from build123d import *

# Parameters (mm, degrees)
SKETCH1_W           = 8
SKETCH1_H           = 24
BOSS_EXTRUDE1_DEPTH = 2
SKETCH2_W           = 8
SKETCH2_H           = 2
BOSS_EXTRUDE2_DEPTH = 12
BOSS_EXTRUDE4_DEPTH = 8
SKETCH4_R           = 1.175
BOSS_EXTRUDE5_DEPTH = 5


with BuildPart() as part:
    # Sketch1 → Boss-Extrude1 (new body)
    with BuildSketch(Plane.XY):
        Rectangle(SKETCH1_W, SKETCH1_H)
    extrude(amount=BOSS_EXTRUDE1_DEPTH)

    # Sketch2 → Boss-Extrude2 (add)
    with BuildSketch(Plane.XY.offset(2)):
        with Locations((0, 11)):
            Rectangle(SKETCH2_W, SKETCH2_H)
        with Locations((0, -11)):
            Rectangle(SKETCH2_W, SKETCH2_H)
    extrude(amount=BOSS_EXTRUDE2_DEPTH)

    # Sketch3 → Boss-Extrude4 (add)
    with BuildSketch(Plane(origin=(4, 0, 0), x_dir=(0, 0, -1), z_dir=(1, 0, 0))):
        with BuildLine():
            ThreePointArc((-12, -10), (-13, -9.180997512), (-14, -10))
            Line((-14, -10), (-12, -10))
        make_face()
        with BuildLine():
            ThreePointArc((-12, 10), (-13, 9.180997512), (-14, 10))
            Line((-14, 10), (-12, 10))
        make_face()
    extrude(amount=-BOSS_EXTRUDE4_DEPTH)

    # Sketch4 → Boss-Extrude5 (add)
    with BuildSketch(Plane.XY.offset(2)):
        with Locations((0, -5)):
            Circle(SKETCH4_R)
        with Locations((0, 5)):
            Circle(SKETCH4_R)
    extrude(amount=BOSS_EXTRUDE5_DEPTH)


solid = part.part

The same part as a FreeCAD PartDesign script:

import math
import FreeCAD as App
import Part
import Sketcher
Q = App.Units.Quantity


def add_polygon(sketch, points):
    """Adds a closed chain of lines whose ends are joined by coincident constraints."""
    first, n = sketch.GeometryCount, len(points)
    for a, b in zip(points, points[1:] + points[:1]):
        sketch.addGeometry(Part.LineSegment(App.Vector(*a, 0), App.Vector(*b, 0)), False)
    for i in range(n):
        sketch.addConstraint(Sketcher.Constraint("Coincident", first + i, 2, first + (i + 1) % n, 1))

doc = App.newDocument("Part")
params = doc.addObject("Spreadsheet::Sheet", "Params")
for row, (alias, value) in enumerate([
    ("sketch1_width", "8 mm"),
    ("sketch1_height", "24 mm"),
    ("pad1_length", "2 mm"),
    ("sketch2_width", "8 mm"),
    ("sketch2_height", "2 mm"),
    ("pad2_length", "12 mm"),
    ("sketch3_height", "2 mm"),
    ("sketch3_radius", "1.02 mm"),
    ("pad3_length", "8 mm"),
    ("sketch4_diameter", "2.35 mm"),
    ("pad4_length", "5 mm"),
], start=1):
    params.set(f"A{row}", alias)
    params.set(f"B{row}", "=" + value)
    params.setAlias(f"B{row}", alias)

body = doc.addObject("PartDesign::Body", "Body")

# Sketch on XY plane
sketch1 = body.newObject("Sketcher::SketchObject", "Sketch")
sketch1.AttachmentSupport = (doc.getObject("XY_Plane"), [""])
sketch1.MapMode = "FlatFace"
add_polygon(sketch1, [(-4, 12), (-4, -12), (4, -12), (4, 12)])  # lines 0-3
sketch1.addConstraint(Sketcher.Constraint("Vertical", 0))
sketch1.addConstraint(Sketcher.Constraint("Horizontal", 1))
sketch1.addConstraint(Sketcher.Constraint("Vertical", 2))
sketch1.addConstraint(Sketcher.Constraint("Horizontal", 3))
sketch1.addConstraint(Sketcher.Constraint("Symmetric", 0, 2, 2, 2, -1, 1))
sketch1.addConstraint(Sketcher.Constraint("DistanceX", 1, 1, 1, 2, Q("8 mm")))
sketch1.addConstraint(Sketcher.Constraint("DistanceY", 0, 2, 0, 1, Q("24 mm")))
sketch1.setExpression("Constraints[9]", "Params.sketch1_width")
sketch1.setExpression("Constraints[10]", "Params.sketch1_height")
pad1 = body.newObject("PartDesign::Pad", "Pad")
pad1.Profile = sketch1
pad1.setExpression("Length", "Params.pad1_length")

# Sketch on XY plane
sketch2 = body.newObject("Sketcher::SketchObject", "Sketch001")
sketch2.AttachmentSupport = (doc.getObject("XY_Plane"), [""])
sketch2.MapMode = "FlatFace"
sketch2.AttachmentOffset = App.Placement(App.Vector(0, 0, 2), App.Rotation())
add_polygon(sketch2, [(-4, 12), (-4, 10), (4, 10), (4, 12)])  # lines 0-3
add_polygon(sketch2, [(-4, -10), (-4, -12), (4, -12), (4, -10)])  # lines 4-7
sketch2.addConstraint(Sketcher.Constraint("Vertical", 0))
sketch2.addConstraint(Sketcher.Constraint("Horizontal", 1))
sketch2.addConstraint(Sketcher.Constraint("Vertical", 2))
sketch2.addConstraint(Sketcher.Constraint("Horizontal", 3))
sketch2.addConstraint(Sketcher.Constraint("Vertical", 4))
sketch2.addConstraint(Sketcher.Constraint("Horizontal", 5))
sketch2.addConstraint(Sketcher.Constraint("Vertical", 6))
sketch2.addConstraint(Sketcher.Constraint("Horizontal", 7))
sketch2.addConstraint(Sketcher.Constraint("Symmetric", 2, 2, 4, 2, -1, 1))
sketch2.addConstraint(Sketcher.Constraint("Symmetric", 0, 2, 6, 2, -1, 1))
sketch2.addConstraint(Sketcher.Constraint("Vertical", 3, 2, 4, 2))
sketch2.addConstraint(Sketcher.Constraint("DistanceX", 1, 1, 1, 2, Q("8 mm")))
sketch2.addConstraint(Sketcher.Constraint("DistanceY", 0, 2, 0, 1, Q("2 mm")))
sketch2.addConstraint(Sketcher.Constraint("DistanceY", -1, 1, 0, 2, Q("10 mm")))
sketch2.setExpression("Constraints[19]", "Params.sketch2_width")
sketch2.setExpression("Constraints[20]", "Params.sketch2_height")
pad2 = body.newObject("PartDesign::Pad", "Pad001")
pad2.Profile = sketch2
pad2.setExpression("Length", "Params.pad2_length")

# Sketch on YZ plane
sketch3 = body.newObject("Sketcher::SketchObject", "Sketch002")
sketch3.AttachmentSupport = (doc.getObject("YZ_Plane"), [""])
sketch3.MapMode = "FlatFace"
sketch3.AttachmentOffset = App.Placement(App.Vector(0, 0, 4), App.Rotation())
sketch3.addGeometry(Part.ArcOfCircle(Part.Circle(App.Vector(-10.2, 13, 0), App.Vector(0, 0, 1), 1), math.radians(-79), math.radians(79)), False)
sketch3.addGeometry(Part.LineSegment(App.Vector(-10, 14, 0), App.Vector(-10, 12, 0)), False)
sketch3.addGeometry(Part.ArcOfCircle(Part.Circle(App.Vector(10.2, 13, 0), App.Vector(0, 0, 1), 1), math.radians(101), math.radians(259)), False)
sketch3.addGeometry(Part.LineSegment(App.Vector(10, 12, 0), App.Vector(10, 14, 0)), False)
sketch3.addConstraint(Sketcher.Constraint("Coincident", 0, 1, 1, 2))
sketch3.addConstraint(Sketcher.Constraint("Coincident", 1, 1, 0, 2))
sketch3.addConstraint(Sketcher.Constraint("Coincident", 2, 1, 3, 2))
sketch3.addConstraint(Sketcher.Constraint("Coincident", 3, 1, 2, 2))
sketch3.addConstraint(Sketcher.Constraint("Vertical", 1))
sketch3.addConstraint(Sketcher.Constraint("Vertical", 3))
sketch3.addConstraint(Sketcher.Constraint("Equal", 0, 2))
sketch3.addConstraint(Sketcher.Constraint("Symmetric", 0, 3, 2, 3, -2))
sketch3.addConstraint(Sketcher.Constraint("Horizontal", 1, 1, 2, 1))
sketch3.addConstraint(Sketcher.Constraint("DistanceY", 1, 2, 1, 1, Q("2 mm")))
sketch3.addConstraint(Sketcher.Constraint("Radius", 0, Q("1.02 mm")))
sketch3.addConstraint(Sketcher.Constraint("DistanceY", -1, 1, 0, 3, Q("13 mm")))
sketch3.addConstraint(Sketcher.Constraint("DistanceX", 0, 1, -1, 1, Q("10 mm")))
sketch3.setExpression("Constraints[9]", "Params.sketch3_height")
sketch3.setExpression("Constraints[10]", "Params.sketch3_radius")
pad3 = body.newObject("PartDesign::Pad", "Pad002")
pad3.Profile = sketch3
pad3.setExpression("Length", "Params.pad3_length")
pad3.Reversed = True

# Sketch on XY plane
sketch4 = body.newObject("Sketcher::SketchObject", "Sketch003")
sketch4.AttachmentSupport = (doc.getObject("XY_Plane"), [""])
sketch4.MapMode = "FlatFace"
sketch4.AttachmentOffset = App.Placement(App.Vector(0, 0, 2), App.Rotation())
sketch4.addGeometry(Part.Circle(App.Vector(0, -5, 0), App.Vector(0, 0, 1), 1.2), False)
sketch4.addGeometry(Part.Circle(App.Vector(0, 5, 0), App.Vector(0, 0, 1), 1.2), False)
sketch4.addConstraint(Sketcher.Constraint("Equal", 0, 1))
sketch4.addConstraint(Sketcher.Constraint("Symmetric", 0, 3, 1, 3, -1, 1))
sketch4.addConstraint(Sketcher.Constraint("PointOnObject", 0, 3, -2))
sketch4.addConstraint(Sketcher.Constraint("Diameter", 0, Q("2.35 mm")))
sketch4.addConstraint(Sketcher.Constraint("DistanceY", 0, 3, -1, 1, Q("5 mm")))
sketch4.setExpression("Constraints[3]", "Params.sketch4_diameter")
pad4 = body.newObject("PartDesign::Pad", "Pad003")
pad4.Profile = sketch4
pad4.setExpression("Length", "Params.pad4_length")

doc.recompute()
